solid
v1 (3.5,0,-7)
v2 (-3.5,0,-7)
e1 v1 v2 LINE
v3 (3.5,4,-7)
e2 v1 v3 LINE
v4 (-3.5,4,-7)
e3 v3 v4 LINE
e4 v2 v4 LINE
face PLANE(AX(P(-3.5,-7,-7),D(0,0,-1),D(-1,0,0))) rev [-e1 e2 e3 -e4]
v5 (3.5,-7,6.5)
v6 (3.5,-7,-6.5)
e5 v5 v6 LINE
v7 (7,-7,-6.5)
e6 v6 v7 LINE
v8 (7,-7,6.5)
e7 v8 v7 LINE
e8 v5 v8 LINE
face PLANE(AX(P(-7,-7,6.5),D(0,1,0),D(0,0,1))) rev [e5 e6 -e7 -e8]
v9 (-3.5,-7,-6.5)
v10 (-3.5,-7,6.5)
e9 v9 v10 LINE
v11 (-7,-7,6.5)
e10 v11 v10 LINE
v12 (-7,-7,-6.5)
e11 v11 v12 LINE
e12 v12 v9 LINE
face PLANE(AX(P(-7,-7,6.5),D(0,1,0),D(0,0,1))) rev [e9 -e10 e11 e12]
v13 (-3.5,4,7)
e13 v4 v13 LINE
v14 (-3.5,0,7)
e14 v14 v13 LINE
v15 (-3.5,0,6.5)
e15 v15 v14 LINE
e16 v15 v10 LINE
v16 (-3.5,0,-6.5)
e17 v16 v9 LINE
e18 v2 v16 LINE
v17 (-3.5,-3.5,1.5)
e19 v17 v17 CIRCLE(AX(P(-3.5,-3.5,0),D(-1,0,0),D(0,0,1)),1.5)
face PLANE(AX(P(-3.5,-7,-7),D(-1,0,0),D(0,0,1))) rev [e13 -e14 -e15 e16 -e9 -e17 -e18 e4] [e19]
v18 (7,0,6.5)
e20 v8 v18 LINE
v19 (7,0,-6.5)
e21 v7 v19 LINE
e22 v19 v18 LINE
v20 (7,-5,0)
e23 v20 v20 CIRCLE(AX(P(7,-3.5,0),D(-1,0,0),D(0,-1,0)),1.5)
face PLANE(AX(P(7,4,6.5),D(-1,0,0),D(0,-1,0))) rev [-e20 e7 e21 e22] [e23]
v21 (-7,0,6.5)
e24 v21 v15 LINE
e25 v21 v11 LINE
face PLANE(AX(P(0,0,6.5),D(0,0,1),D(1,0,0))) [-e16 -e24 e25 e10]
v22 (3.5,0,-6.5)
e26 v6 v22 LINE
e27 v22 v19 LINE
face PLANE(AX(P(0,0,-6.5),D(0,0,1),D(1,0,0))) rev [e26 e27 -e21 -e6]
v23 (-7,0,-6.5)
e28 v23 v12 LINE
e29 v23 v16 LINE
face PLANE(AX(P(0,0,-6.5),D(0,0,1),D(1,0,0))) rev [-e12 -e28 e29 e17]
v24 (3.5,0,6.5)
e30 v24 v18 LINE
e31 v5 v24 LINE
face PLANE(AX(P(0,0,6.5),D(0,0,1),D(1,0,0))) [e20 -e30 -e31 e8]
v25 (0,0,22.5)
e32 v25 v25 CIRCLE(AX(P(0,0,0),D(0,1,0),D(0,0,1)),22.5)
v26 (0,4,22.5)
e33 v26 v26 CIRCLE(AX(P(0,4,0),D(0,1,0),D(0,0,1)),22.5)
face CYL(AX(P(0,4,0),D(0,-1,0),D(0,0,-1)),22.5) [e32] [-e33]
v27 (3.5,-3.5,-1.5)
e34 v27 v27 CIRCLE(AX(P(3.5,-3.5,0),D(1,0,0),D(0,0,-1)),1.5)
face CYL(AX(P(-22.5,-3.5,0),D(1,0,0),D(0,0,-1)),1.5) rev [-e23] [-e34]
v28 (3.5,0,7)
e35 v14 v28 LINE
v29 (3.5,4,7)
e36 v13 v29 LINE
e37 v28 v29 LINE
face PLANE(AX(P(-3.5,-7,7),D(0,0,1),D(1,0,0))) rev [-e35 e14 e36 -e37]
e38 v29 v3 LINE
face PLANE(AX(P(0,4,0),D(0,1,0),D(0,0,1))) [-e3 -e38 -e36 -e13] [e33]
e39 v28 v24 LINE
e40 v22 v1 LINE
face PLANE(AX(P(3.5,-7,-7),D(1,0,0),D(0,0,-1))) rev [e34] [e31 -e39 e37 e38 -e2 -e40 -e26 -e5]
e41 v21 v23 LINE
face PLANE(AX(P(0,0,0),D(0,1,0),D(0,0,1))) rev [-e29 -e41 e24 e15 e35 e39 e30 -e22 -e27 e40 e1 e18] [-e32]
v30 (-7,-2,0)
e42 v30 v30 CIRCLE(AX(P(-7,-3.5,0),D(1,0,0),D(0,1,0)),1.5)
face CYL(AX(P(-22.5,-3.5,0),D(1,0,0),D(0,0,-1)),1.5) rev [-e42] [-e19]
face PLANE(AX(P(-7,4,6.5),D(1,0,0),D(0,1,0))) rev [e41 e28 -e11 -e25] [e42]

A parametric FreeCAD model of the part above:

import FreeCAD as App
import Part
import Sketcher

V = App.Vector
Q = App.Units.Quantity


def add_polygon(sketch, points):
    """Adds a closed chain of lines whose ends are joined by coincident constraints."""
    first, n = sketch.GeometryCount, len(points)
    for a, b in zip(points, points[1:] + points[:1]):
        sketch.addGeometry(Part.LineSegment(App.Vector(*a, 0), App.Vector(*b, 0)), False)
    for i in range(n):
        sketch.addConstraint(Sketcher.Constraint("Coincident", first + i, 2, first + (i + 1) % n, 1))

doc = App.newDocument("Part")
params = doc.addObject("Spreadsheet::Sheet", "Params")
for row, (alias, value) in enumerate([
    ("sketch1_diameter", "45 mm"),
    ("pad1_length", "4 mm"),
    ("sketch2_width", "14 mm"),
    ("sketch2_height", "11 mm"),
    ("pad2_length", "13 mm"),
    ("sketch3_width", "7 mm"),
    ("sketch3_height", "14 mm"),
    ("sketch4_diameter", "3 mm"),
], start=1):
    params.set(f"A{row}", alias)
    params.set(f"B{row}", "=" + value)
    params.setAlias(f"B{row}", alias)

body = doc.addObject("PartDesign::Body", "Body")

sketch1 = body.newObject("Sketcher::SketchObject", "Sketch")
sketch1.AttachmentSupport = (doc.getObject("XZ_Plane"), [""])
sketch1.MapMode = "FlatFace"
sketch1.addGeometry(Part.Circle(V(0, 0, 0), V(0, 0, 1), 22), False)
sketch1.addConstraint(Sketcher.Constraint("Coincident", 0, 3, -1, 1))
sketch1.addConstraint(Sketcher.Constraint("Diameter", 0, Q("45 mm")))
sketch1.setExpression("Constraints[1]", "Params.sketch1_diameter")
pad1 = body.newObject("PartDesign::Pad", "Pad")
pad1.Profile = sketch1
pad1.setExpression("Length", "Params.pad1_length")
pad1.Reversed = True

sketch2 = body.newObject("Sketcher::SketchObject", "Sketch001")
sketch2.AttachmentSupport = (doc.getObject("XY_Plane"), [""])
sketch2.MapMode = "FlatFace"
add_polygon(sketch2, [(-7, 4), (-7, -7), (7, -7), (7, 4)])
sketch2.addConstraint(Sketcher.Constraint("Vertical", 0))
sketch2.addConstraint(Sketcher.Constraint("Horizontal", 1))
sketch2.addConstraint(Sketcher.Constraint("Vertical", 2))
sketch2.addConstraint(Sketcher.Constraint("Horizontal", 3))
sketch2.addConstraint(Sketcher.Constraint("DistanceX", 1, 1, 1, 2, Q("14 mm")))
sketch2.addConstraint(Sketcher.Constraint("DistanceY", 0, 2, 0, 1, Q("11 mm")))
sketch2.addConstraint(Sketcher.Constraint("DistanceX", 0, 2, -1, 1, Q("7 mm")))
sketch2.addConstraint(Sketcher.Constraint("DistanceY", 0, 2, -1, 1, Q("7 mm")))
sketch2.setExpression("Constraints[8]", "Params.sketch2_width")
sketch2.setExpression("Constraints[9]", "Params.sketch2_height")
pad2 = body.newObject("PartDesign::Pad", "Pad001")
pad2.Profile = sketch2
pad2.setExpression("Length", "Params.pad2_length")
pad2.Midplane = True

sketch3 = body.newObject("Sketcher::SketchObject", "Sketch002")
sketch3.AttachmentSupport = (doc.getObject("XZ_Plane"), [""])
sketch3.MapMode = "FlatFace"
add_polygon(sketch3, [(-4, -7), (-4, 7), (4, 7), (4, -7)])
sketch3.addConstraint(Sketcher.Constraint("Vertical", 0))
sketch3.addConstraint(Sketcher.Constraint("Horizontal", 1))
sketch3.addConstraint(Sketcher.Constraint("Vertical", 2))
sketch3.addConstraint(Sketcher.Constraint("Horizontal", 3))
sketch3.addConstraint(Sketcher.Constraint("Symmetric", 0, 2, 2, 2, -1, 1))
sketch3.addConstraint(Sketcher.Constraint("DistanceX", 1, 1, 1, 2, Q("7 mm")))
sketch3.addConstraint(Sketcher.Constraint("DistanceY", 0, 1, 0, 2, Q("14 mm")))
sketch3.setExpression("Constraints[9]", "Params.sketch3_width")
sketch3.setExpression("Constraints[10]", "Params.sketch3_height")
pocket1 = body.newObject("PartDesign::Pocket", "Pocket")
pocket1.Profile = sketch3
pocket1.Type = "ThroughAll"
pocket1.Midplane = True

sketch4 = body.newObject("Sketcher::SketchObject", "Sketch003")
sketch4.AttachmentSupport = (doc.getObject("YZ_Plane"), [""])
sketch4.MapMode = "FlatFace"
sketch4.addGeometry(Part.Circle(V(-3.5, 0, 0), V(0, 0, 1), 1.5), False)
sketch4.addConstraint(Sketcher.Constraint("PointOnObject", 0, 3, -1))
sketch4.addConstraint(Sketcher.Constraint("Diameter", 0, Q("3 mm")))
sketch4.addConstraint(Sketcher.Constraint("DistanceX", 0, 3, -1, 1, Q("3.5 mm")))
sketch4.setExpression("Constraints[1]", "Params.sketch4_diameter")
pocket2 = body.newObject("PartDesign::Pocket", "Pocket001")
pocket2.Profile = sketch4
pocket2.Type = "ThroughAll"
pocket2.Midplane = True

doc.recompute()
